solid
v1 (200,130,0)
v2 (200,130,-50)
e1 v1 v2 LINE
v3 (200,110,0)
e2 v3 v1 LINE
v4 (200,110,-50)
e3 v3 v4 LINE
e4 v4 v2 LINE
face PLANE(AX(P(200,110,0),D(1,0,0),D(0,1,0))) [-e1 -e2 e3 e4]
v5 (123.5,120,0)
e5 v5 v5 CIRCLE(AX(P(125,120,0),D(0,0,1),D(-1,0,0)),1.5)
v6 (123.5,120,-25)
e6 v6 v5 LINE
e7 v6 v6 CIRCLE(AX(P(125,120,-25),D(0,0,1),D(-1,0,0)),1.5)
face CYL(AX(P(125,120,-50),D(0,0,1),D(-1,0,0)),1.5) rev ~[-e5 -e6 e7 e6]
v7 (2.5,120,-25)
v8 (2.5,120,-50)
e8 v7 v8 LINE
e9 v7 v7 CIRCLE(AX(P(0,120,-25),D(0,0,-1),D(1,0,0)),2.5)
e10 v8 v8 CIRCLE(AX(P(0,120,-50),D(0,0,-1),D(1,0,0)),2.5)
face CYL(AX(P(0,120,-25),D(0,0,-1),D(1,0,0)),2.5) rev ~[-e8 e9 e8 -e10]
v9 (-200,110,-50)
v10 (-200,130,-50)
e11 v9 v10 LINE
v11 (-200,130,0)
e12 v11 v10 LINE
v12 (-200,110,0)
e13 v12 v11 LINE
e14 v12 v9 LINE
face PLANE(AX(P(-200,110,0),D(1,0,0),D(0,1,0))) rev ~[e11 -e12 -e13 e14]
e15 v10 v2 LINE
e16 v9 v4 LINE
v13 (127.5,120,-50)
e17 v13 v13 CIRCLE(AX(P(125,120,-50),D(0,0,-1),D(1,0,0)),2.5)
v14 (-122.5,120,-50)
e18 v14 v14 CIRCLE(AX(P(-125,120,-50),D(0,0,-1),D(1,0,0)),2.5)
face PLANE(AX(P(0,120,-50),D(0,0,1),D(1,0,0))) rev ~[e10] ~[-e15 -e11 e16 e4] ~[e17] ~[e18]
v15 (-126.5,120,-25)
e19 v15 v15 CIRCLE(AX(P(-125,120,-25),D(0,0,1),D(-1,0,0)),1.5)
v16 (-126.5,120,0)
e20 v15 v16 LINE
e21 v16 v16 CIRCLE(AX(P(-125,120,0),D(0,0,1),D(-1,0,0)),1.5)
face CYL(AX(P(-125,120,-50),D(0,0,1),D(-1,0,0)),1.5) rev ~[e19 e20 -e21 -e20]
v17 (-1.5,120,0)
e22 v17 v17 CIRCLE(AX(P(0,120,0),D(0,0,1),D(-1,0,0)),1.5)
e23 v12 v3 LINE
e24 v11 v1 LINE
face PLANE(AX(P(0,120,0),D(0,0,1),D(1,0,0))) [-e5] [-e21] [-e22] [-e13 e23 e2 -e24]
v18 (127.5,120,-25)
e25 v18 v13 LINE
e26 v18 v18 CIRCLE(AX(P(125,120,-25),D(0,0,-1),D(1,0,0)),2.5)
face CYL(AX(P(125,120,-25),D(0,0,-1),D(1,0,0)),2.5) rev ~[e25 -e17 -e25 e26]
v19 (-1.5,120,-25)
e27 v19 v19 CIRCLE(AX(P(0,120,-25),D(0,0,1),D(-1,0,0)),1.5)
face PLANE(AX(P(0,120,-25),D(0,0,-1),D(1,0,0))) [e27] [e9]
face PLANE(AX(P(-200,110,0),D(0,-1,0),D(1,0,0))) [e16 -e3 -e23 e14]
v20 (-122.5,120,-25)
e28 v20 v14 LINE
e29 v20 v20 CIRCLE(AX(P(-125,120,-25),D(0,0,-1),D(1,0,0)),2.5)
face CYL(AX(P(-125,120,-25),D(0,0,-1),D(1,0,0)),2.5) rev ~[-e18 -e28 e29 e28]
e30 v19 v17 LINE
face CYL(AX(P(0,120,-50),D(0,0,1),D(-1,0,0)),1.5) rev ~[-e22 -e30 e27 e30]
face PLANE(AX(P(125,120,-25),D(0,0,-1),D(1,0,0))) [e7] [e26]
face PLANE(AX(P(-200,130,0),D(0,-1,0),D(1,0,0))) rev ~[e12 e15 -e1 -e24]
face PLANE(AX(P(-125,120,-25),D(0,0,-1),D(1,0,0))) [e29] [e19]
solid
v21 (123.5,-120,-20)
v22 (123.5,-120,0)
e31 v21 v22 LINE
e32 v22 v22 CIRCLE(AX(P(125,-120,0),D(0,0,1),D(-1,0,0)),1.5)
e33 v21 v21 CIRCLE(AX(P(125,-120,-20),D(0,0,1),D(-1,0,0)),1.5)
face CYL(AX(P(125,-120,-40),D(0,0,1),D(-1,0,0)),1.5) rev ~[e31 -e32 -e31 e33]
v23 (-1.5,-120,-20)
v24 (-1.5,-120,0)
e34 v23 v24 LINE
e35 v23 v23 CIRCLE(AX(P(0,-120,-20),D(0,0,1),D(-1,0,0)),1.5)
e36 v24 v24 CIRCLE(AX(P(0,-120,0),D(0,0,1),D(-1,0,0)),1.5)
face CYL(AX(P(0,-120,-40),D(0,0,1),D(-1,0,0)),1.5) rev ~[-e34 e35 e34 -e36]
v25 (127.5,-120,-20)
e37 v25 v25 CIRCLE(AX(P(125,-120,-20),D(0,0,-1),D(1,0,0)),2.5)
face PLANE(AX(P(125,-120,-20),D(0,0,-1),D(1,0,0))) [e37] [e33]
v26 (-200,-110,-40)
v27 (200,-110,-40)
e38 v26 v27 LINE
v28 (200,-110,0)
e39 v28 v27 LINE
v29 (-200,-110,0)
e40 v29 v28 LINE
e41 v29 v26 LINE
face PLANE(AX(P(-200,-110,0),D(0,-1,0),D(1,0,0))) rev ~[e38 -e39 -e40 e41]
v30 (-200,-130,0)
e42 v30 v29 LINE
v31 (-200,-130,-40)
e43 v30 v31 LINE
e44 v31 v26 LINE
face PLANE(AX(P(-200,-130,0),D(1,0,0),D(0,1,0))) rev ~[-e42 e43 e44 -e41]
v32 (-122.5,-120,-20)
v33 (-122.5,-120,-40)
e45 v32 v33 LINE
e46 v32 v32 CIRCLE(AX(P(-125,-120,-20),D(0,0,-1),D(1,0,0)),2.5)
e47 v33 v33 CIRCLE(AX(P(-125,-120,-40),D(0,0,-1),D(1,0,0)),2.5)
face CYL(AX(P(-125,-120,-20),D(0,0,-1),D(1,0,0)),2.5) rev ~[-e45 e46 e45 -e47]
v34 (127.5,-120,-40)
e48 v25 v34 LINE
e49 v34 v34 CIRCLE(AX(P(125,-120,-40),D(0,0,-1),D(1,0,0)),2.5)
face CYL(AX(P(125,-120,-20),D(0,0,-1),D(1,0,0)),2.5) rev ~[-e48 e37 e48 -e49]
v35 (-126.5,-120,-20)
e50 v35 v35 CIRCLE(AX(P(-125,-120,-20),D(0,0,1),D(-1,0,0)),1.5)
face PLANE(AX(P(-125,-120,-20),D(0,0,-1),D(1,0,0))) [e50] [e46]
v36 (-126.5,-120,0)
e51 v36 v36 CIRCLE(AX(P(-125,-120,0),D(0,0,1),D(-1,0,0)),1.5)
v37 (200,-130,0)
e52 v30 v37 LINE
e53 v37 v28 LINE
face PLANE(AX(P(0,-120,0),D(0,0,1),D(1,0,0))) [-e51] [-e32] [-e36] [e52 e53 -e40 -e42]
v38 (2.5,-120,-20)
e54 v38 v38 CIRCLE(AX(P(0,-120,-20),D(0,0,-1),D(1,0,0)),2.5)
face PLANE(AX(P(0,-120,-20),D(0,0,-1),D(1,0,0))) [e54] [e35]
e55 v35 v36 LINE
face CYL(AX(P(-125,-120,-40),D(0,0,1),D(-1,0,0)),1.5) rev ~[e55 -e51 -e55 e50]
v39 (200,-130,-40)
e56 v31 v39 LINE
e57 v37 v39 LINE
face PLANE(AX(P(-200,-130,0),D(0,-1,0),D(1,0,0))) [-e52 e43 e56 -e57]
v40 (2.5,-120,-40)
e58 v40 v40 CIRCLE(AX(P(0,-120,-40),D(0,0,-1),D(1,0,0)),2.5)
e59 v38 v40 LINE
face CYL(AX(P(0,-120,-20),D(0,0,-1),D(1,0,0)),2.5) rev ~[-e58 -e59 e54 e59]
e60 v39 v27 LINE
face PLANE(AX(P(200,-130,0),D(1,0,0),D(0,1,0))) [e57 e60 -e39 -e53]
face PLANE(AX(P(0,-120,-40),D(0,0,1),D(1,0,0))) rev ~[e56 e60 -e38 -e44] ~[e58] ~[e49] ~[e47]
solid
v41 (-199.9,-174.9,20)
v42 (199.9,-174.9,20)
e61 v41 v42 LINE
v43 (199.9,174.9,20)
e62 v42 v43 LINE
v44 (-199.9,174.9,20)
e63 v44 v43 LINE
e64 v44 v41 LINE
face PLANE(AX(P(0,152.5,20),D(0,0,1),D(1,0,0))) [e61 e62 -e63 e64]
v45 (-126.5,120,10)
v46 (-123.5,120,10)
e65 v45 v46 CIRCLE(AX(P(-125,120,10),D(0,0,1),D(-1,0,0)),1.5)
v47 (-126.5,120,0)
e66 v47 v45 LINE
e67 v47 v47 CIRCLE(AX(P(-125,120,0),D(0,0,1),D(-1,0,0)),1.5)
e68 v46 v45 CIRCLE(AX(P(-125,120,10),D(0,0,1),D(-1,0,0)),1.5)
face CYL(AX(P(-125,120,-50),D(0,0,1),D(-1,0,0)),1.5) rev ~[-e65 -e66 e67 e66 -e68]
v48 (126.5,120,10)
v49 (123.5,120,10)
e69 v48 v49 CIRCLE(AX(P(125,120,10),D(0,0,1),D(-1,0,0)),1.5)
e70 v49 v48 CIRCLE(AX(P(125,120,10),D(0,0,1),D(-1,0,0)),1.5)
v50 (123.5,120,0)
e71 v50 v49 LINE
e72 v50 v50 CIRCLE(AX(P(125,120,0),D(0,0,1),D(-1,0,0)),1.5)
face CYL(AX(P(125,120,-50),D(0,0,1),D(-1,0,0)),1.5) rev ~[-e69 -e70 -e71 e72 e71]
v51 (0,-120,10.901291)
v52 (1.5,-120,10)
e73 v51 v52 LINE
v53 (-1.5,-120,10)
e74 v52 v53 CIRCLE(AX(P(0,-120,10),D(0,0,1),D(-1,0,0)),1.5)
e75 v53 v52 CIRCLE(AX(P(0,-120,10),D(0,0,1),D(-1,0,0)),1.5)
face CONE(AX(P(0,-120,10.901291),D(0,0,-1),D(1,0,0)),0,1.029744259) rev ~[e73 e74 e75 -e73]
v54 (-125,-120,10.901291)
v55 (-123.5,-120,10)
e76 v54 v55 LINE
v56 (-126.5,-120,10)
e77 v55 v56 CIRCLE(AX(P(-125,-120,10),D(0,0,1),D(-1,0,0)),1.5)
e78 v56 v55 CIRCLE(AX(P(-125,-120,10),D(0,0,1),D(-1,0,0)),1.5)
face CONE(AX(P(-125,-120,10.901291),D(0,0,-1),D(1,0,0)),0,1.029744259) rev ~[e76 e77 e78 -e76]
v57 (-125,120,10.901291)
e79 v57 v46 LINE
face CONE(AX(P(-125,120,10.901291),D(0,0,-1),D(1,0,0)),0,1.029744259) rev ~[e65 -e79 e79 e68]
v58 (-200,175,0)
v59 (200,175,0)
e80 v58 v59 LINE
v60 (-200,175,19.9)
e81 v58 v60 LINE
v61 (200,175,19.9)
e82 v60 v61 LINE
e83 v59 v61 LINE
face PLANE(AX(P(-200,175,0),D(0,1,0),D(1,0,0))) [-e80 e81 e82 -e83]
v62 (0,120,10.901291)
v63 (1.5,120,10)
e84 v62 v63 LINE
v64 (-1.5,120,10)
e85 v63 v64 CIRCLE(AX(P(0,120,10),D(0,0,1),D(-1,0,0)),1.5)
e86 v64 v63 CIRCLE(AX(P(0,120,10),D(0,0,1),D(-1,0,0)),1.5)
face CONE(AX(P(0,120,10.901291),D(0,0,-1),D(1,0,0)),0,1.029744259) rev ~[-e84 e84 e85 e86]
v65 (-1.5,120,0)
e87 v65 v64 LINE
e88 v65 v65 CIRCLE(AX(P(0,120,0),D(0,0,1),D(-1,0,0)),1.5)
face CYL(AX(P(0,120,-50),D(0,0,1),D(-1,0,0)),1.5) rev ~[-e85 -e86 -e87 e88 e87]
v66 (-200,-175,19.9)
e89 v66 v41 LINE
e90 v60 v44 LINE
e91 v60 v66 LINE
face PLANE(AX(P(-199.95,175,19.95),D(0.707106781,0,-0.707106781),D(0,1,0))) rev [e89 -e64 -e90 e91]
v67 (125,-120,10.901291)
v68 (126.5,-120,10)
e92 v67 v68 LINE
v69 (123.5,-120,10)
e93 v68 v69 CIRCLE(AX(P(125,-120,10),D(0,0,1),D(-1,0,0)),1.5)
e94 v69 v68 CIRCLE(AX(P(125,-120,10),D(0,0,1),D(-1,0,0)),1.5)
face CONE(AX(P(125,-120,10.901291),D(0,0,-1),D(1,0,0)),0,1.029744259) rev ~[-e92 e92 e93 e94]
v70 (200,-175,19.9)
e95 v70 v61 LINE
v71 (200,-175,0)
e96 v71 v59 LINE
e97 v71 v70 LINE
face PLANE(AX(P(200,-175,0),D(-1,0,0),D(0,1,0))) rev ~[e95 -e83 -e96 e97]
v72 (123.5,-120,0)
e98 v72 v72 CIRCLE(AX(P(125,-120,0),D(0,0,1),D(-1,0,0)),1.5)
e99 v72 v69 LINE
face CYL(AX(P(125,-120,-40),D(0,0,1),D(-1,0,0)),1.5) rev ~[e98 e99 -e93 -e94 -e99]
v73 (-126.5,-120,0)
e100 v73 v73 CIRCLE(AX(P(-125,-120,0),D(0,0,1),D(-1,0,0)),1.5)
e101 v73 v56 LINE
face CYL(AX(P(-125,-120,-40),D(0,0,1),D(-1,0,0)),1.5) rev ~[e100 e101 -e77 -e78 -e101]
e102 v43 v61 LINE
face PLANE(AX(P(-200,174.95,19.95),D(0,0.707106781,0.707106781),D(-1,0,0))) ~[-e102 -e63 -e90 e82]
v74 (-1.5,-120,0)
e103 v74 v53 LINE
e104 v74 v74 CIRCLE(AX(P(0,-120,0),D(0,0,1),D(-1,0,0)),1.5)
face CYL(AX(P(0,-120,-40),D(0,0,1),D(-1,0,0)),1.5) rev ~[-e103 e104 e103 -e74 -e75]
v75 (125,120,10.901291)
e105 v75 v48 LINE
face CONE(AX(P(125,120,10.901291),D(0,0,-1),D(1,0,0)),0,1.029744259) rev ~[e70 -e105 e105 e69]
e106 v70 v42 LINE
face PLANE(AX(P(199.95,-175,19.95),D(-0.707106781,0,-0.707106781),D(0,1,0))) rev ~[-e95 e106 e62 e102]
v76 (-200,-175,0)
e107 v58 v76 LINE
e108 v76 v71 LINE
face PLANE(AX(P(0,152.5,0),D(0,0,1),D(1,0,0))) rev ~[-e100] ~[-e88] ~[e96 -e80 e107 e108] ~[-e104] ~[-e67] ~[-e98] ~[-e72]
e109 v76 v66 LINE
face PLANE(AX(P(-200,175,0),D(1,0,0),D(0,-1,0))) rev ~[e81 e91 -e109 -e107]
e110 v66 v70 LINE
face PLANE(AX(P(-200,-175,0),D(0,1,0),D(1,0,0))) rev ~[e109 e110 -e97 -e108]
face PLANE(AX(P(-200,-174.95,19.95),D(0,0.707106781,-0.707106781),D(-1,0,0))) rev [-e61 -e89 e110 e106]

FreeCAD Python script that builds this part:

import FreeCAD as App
import Part
import Sketcher

V = App.Vector
Q = App.Units.Quantity


def edges_at(feature, points):
    """Names of the edges that pass closest to the given points."""
    edges = feature.Shape.Edges
    near = lambda p: min(range(len(edges)), key=lambda i: edges[i].distToShape(Part.Vertex(*p))[0])
    return sorted({f"Edge{near(p) + 1}" for p in points})


def add_polygon(sketch, points):
    """Adds a closed chain of lines whose ends are joined by coincident constraints."""
    first, n = sketch.GeometryCount, len(points)
    for a, b in zip(points, points[1:] + points[:1]):
        sketch.addGeometry(Part.LineSegment(App.Vector(*a, 0), App.Vector(*b, 0)), False)
    for i in range(n):
        sketch.addConstraint(Sketcher.Constraint("Coincident", first + i, 2, first + (i + 1) % n, 1))

doc = App.newDocument("Part")
body = doc.addObject("PartDesign::Body", "Body")

sketch1 = body.newObject("Sketcher::SketchObject", "Sketch")
sketch1.AttachmentSupport = (doc.getObject("XY_Plane"), [""])
sketch1.MapMode = "FlatFace"
add_polygon(sketch1, [(-200, 175), (-200, -175), (200, -175), (200, 175)])
sketch1.addConstraint(Sketcher.Constraint("Vertical", 0))
sketch1.addConstraint(Sketcher.Constraint("Horizontal", 1))
sketch1.addConstraint(Sketcher.Constraint("Vertical", 2))
sketch1.addConstraint(Sketcher.Constraint("Horizontal", 3))
sketch1.addConstraint(Sketcher.Constraint("Symmetric", 0, 2, 2, 2, -1, 1))
sketch1.addConstraint(Sketcher.Constraint("DistanceX", 1, 1, 1, 2, Q("400 mm")))
sketch1.addConstraint(Sketcher.Constraint("DistanceY", 0, 2, 0, 1, Q("350 mm")))
pad1 = body.newObject("PartDesign::Pad", "Pad")
pad1.Profile = sketch1
pad1.Length = 20

sketch2 = body.newObject("Sketcher::SketchObject", "Sketch001")
sketch2.AttachmentSupport = (doc.getObject("XY_Plane"), [""])
sketch2.MapMode = "FlatFace"
sketch2.AttachmentOffset = App.Placement(V(0, 0, -40), App.Rotation())
sketch2.addGeometry(Part.Circle(V(-125, -120, 0), V(0, 0, 1), 1.5), False)
sketch2.addGeometry(Part.Circle(V(0, -120, 0), V(0, 0, 1), 1.5), False)
sketch2.addGeometry(Part.Circle(V(125, -120, 0), V(0, 0, 1), 1.5), False)
sketch2.addConstraint(Sketcher.Constraint("Equal", 0, 1))
sketch2.addConstraint(Sketcher.Constraint("Equal", 1, 2))
sketch2.addConstraint(Sketcher.Constraint("Symmetric", 0, 3, 2, 3, -2))
sketch2.addConstraint(Sketcher.Constraint("PointOnObject", 1, 3, -2))
sketch2.addConstraint(Sketcher.Constraint("Horizontal", 0, 3, 1, 3))
sketch2.addConstraint(Sketcher.Constraint("Diameter", 0, Q("3 mm")))
sketch2.addConstraint(Sketcher.Constraint("DistanceX", 0, 3, -1, 1, Q("125 mm")))
sketch2.addConstraint(Sketcher.Constraint("DistanceY", 0, 3, -1, 1, Q("120 mm")))
doc.recompute()
hole = body.newObject("PartDesign::Hole", "Hole")
hole.Profile = sketch2
hole.ThreadType = "None"
hole.Diameter = 3
hole.DepthType = "Dimension"
hole.Depth = 50
hole.DrillPoint = "Angled"
hole.DrillPointAngle = 118
hole.HoleCutType = "Counterbore"
hole.HoleCutDiameter = 5
hole.HoleCutDepth = 20
hole.Reversed = True

sketch3 = body.newObject("Sketcher::SketchObject", "Sketch002")
sketch3.AttachmentSupport = (doc.getObject("XY_Plane"), [""])
sketch3.MapMode = "FlatFace"
sketch3.AttachmentOffset = App.Placement(V(0, 0, -50), App.Rotation())
sketch3.addGeometry(Part.Circle(V(125, 120, 0), V(0, 0, 1), 1.5), False)
sketch3.addGeometry(Part.Circle(V(0, 120, 0), V(0, 0, 1), 1.5), False)
sketch3.addGeometry(Part.Circle(V(-125, 120, 0), V(0, 0, 1), 1.5), False)
sketch3.addConstraint(Sketcher.Constraint("Equal", 0, 1))
sketch3.addConstraint(Sketcher.Constraint("Equal", 1, 2))
sketch3.addConstraint(Sketcher.Constraint("Symmetric", 0, 3, 2, 3, -2))
sketch3.addConstraint(Sketcher.Constraint("PointOnObject", 1, 3, -2))
sketch3.addConstraint(Sketcher.Constraint("Horizontal", 0, 3, 1, 3))
sketch3.addConstraint(Sketcher.Constraint("Diameter", 0, Q("3 mm")))
sketch3.addConstraint(Sketcher.Constraint("DistanceX", -1, 1, 0, 3, Q("125 mm")))
sketch3.addConstraint(Sketcher.Constraint("DistanceY", -1, 1, 0, 3, Q("120 mm")))
doc.recompute()
hole2 = body.newObject("PartDesign::Hole", "Hole001")
hole2.Profile = sketch3
hole2.ThreadType = "None"
hole2.Diameter = 3
hole2.DepthType = "Dimension"
hole2.Depth = 60
hole2.DrillPoint = "Angled"
hole2.DrillPointAngle = 118
hole2.HoleCutType = "Counterbore"
hole2.HoleCutDiameter = 5
hole2.HoleCutDepth = 25
hole2.Reversed = True
doc.recompute()

chamfer = body.newObject("PartDesign::Chamfer", "Chamfer")
chamfer.Base = (hole2, edges_at(hole2, [
    (-200, 0, 20),
    (0, -175, 20),
    (200, 0, 20),
    (0, 175, 20),
]))
chamfer.Size = 0.1
body2 = doc.addObject("PartDesign::Body", "Body001")

sketch4 = body2.newObject("Sketcher::SketchObject", "Sketch003")
sketch4.AttachmentSupport = (doc.getObject("XY_Plane001"), [""])
sketch4.MapMode = "FlatFace"
add_polygon(sketch4, [(-200, -110), (-200, -130), (200, -130), (200, -110)])
sketch4.addConstraint(Sketcher.Constraint("Vertical", 0))
sketch4.addConstraint(Sketcher.Constraint("Horizontal", 1))
sketch4.addConstraint(Sketcher.Constraint("Vertical", 2))
sketch4.addConstraint(Sketcher.Constraint("Horizontal", 3))
sketch4.addConstraint(Sketcher.Constraint("DistanceX", 1, 1, 1, 2, Q("400 mm")))
sketch4.addConstraint(Sketcher.Constraint("DistanceY", 0, 2, 0, 1, Q("20 mm")))
sketch4.addConstraint(Sketcher.Constraint("DistanceX", 0, 2, -1, 1, Q("200 mm")))
sketch4.addConstraint(Sketcher.Constraint("DistanceY", 0, 2, -1, 1, Q("130 mm")))
pad2 = body2.newObject("PartDesign::Pad", "Pad001")
pad2.Profile = sketch4
pad2.Length = 40
pad2.Reversed = True

sketch5 = body2.newObject("Sketcher::SketchObject", "Sketch004")
sketch5.AttachmentSupport = (doc.getObject("XY_Plane001"), [""])
sketch5.MapMode = "FlatFace"
sketch5.AttachmentOffset = App.Placement(V(0, 0, -40), App.Rotation())
sketch5.addGeometry(Part.Circle(V(-125, -120, 0), V(0, 0, 1), 1.5), False)
sketch5.addGeometry(Part.Circle(V(0, -120, 0), V(0, 0, 1), 1.5), False)
sketch5.addGeometry(Part.Circle(V(125, -120, 0), V(0, 0, 1), 1.5), False)
sketch5.addConstraint(Sketcher.Constraint("Equal", 0, 1))
sketch5.addConstraint(Sketcher.Constraint("Equal", 1, 2))
sketch5.addConstraint(Sketcher.Constraint("Symmetric", 0, 3, 2, 3, -2))
sketch5.addConstraint(Sketcher.Constraint("PointOnObject", 1, 3, -2))
sketch5.addConstraint(Sketcher.Constraint("Horizontal", 0, 3, 1, 3))
sketch5.addConstraint(Sketcher.Constraint("Diameter", 0, Q("3 mm")))
sketch5.addConstraint(Sketcher.Constraint("DistanceX", 0, 3, -1, 1, Q("125 mm")))
sketch5.addConstraint(Sketcher.Constraint("DistanceY", 0, 3, -1, 1, Q("120 mm")))
doc.recompute()
hole3 = body2.newObject("PartDesign::Hole", "Hole002")
hole3.Profile = sketch5
hole3.ThreadType = "None"
hole3.Diameter = 3
hole3.DepthType = "Dimension"
hole3.Depth = 50
hole3.DrillPoint = "Angled"
hole3.DrillPointAngle = 118
hole3.HoleCutType = "Counterbore"
hole3.HoleCutDiameter = 5
hole3.HoleCutDepth = 20
hole3.Reversed = True
body3 = doc.addObject("PartDesign::Body", "Body002")

sketch6 = body3.newObject("Sketcher::SketchObject", "Sketch005")
sketch6.AttachmentSupport = (doc.getObject("XY_Plane002"), [""])
sketch6.MapMode = "FlatFace"
add_polygon(sketch6, [(-200, 130), (-200, 110), (200, 110), (200, 130)])
sketch6.addConstraint(Sketcher.Constraint("Vertical", 0))
sketch6.addConstraint(Sketcher.Constraint("Horizontal", 1))
sketch6.addConstraint(Sketcher.Constraint("Vertical", 2))
sketch6.addConstraint(Sketcher.Constraint("Horizontal", 3))
sketch6.addConstraint(Sketcher.Constraint("DistanceX", 1, 1, 1, 2, Q("400 mm")))
sketch6.addConstraint(Sketcher.Constraint("DistanceY", 0, 2, 0, 1, Q("20 mm")))
sketch6.addConstraint(Sketcher.Constraint("DistanceX", 0, 2, -1, 1, Q("200 mm")))
sketch6.addConstraint(Sketcher.Constraint("DistanceY", -1, 1, 0, 2, Q("110 mm")))
pad3 = body3.newObject("PartDesign::Pad", "Pad002")
pad3.Profile = sketch6
pad3.Length = 50
pad3.Reversed = True

sketch7 = body3.newObject("Sketcher::SketchObject", "Sketch006")
sketch7.AttachmentSupport = (doc.getObject("XY_Plane002"), [""])
sketch7.MapMode = "FlatFace"
sketch7.AttachmentOffset = App.Placement(V(0, 0, -50), App.Rotation())
sketch7.addGeometry(Part.Circle(V(125, 120, 0), V(0, 0, 1), 1.5), False)
sketch7.addGeometry(Part.Circle(V(0, 120, 0), V(0, 0, 1), 1.5), False)
sketch7.addGeometry(Part.Circle(V(-125, 120, 0), V(0, 0, 1), 1.5), False)
sketch7.addConstraint(Sketcher.Constraint("Equal", 0, 1))
sketch7.addConstraint(Sketcher.Constraint("Equal", 1, 2))
sketch7.addConstraint(Sketcher.Constraint("Symmetric", 0, 3, 2, 3, -2))
sketch7.addConstraint(Sketcher.Constraint("PointOnObject", 1, 3, -2))
sketch7.addConstraint(Sketcher.Constraint("Horizontal", 0, 3, 1, 3))
sketch7.addConstraint(Sketcher.Constraint("Diameter", 0, Q("3 mm")))
sketch7.addConstraint(Sketcher.Constraint("DistanceX", -1, 1, 0, 3, Q("125 mm")))
sketch7.addConstraint(Sketcher.Constraint("DistanceY", -1, 1, 0, 3, Q("120 mm")))
doc.recompute()
hole4 = body3.newObject("PartDesign::Hole", "Hole003")
hole4.Profile = sketch7
hole4.ThreadType = "None"
hole4.Diameter = 3
hole4.DepthType = "Dimension"
hole4.Depth = 60
hole4.DrillPoint = "Angled"
hole4.DrillPointAngle = 118
hole4.HoleCutType = "Counterbore"
hole4.HoleCutDiameter = 5
hole4.HoleCutDepth = 25
hole4.Reversed = True

doc.recompute()
